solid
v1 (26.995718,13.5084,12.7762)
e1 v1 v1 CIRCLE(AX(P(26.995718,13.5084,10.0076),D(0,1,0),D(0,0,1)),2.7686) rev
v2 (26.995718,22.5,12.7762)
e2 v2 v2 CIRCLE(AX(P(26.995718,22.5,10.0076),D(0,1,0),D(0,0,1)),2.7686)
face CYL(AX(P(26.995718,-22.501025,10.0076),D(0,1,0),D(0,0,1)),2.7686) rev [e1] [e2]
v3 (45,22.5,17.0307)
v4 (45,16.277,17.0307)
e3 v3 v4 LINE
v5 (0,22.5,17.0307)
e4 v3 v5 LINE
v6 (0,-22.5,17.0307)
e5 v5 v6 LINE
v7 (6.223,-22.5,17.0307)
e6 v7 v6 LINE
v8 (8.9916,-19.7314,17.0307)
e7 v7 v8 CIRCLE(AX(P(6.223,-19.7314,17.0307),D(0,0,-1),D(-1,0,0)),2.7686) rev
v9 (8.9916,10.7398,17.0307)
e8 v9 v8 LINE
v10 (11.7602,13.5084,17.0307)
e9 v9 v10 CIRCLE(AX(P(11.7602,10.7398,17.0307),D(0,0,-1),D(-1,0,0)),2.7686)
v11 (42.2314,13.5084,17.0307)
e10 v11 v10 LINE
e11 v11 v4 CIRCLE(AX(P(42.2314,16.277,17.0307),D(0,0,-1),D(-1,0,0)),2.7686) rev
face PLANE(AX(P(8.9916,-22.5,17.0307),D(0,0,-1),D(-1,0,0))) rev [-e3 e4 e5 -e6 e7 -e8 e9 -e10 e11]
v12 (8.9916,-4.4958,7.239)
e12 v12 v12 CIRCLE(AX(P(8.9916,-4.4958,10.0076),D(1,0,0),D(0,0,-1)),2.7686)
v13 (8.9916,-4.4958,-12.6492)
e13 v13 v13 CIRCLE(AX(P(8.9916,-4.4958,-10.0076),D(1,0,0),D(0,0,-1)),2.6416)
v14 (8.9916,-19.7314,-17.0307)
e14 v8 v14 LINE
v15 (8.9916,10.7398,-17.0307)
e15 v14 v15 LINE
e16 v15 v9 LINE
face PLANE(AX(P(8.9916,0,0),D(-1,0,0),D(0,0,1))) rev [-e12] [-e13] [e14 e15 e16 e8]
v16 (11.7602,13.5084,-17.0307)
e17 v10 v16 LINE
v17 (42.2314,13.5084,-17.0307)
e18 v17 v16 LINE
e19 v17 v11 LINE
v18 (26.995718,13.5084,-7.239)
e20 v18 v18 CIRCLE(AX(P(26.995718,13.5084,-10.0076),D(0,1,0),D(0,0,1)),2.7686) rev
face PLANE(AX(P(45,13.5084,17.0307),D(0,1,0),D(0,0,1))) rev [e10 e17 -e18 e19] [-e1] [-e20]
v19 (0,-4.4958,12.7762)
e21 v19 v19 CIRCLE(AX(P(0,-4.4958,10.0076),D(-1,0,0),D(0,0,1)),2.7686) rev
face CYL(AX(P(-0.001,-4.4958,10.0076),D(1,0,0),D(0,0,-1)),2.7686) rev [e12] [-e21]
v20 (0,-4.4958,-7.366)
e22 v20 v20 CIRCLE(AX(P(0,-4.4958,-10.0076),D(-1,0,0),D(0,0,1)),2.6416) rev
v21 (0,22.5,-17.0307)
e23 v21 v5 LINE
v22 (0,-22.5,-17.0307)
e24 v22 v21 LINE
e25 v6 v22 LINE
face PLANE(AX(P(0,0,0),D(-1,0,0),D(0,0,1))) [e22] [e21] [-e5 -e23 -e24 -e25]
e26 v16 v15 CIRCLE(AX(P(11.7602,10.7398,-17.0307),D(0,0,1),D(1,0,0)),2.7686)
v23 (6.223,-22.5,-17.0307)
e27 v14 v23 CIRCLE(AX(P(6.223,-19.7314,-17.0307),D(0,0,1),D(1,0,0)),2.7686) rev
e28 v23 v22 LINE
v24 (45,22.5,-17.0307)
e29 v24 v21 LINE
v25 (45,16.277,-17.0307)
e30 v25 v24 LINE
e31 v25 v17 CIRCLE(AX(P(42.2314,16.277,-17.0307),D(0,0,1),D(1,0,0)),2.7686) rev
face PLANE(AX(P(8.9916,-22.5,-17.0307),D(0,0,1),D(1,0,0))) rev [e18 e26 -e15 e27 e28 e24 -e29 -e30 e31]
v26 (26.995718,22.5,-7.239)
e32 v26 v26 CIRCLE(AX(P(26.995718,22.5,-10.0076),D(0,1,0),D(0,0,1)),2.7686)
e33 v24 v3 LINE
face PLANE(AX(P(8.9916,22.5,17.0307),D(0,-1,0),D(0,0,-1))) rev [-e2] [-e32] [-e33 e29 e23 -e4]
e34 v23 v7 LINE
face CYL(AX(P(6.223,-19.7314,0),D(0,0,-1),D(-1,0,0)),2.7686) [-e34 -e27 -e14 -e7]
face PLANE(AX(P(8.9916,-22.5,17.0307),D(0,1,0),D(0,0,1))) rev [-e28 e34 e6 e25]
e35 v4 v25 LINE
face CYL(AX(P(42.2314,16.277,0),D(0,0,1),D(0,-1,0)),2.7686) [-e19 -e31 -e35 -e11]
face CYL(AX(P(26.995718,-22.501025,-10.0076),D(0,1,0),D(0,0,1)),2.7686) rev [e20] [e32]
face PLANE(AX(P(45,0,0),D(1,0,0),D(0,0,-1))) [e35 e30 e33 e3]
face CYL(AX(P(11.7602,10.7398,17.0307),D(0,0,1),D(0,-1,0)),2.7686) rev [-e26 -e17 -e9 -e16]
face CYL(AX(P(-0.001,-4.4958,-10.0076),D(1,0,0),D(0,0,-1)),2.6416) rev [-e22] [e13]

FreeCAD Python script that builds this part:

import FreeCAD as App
import Part
import Sketcher
from FreeCAD import Vector
Q = App.Units.Quantity


def edges_at(feature, points):
    """Names of the edges that pass closest to the given points."""
    edges = feature.Shape.Edges
    near = lambda p: min(range(len(edges)), key=lambda i: edges[i].distToShape(Part.Vertex(*p))[0])
    return sorted({f"Edge{near(p) + 1}" for p in points})


def add_polygon(sketch, points):
    """Adds a closed chain of lines whose ends are joined by coincident constraints."""
    first, n = sketch.GeometryCount, len(points)
    for a, b in zip(points, points[1:] + points[:1]):
        sketch.addGeometry(Part.LineSegment(App.Vector(*a, 0), App.Vector(*b, 0)), False)
    for i in range(n):
        sketch.addConstraint(Sketcher.Constraint("Coincident", first + i, 2, first + (i + 1) % n, 1))

doc = App.newDocument("Part")
body = doc.addObject("PartDesign::Body", "Body")

# Sketch on YZ plane
sketch1 = body.newObject("Sketcher::SketchObject", "Sketch")
sketch1.AttachmentSupport = (doc.getObject("YZ_Plane"), [""])
sketch1.MapMode = "FlatFace"
add_polygon(sketch1, [(22, 17), (-22, 17), (-22, -17), (22, -17)])  # lines 0-3
sketch1.addConstraint([
    Sketcher.Constraint("Horizontal", 0),
    Sketcher.Constraint("Vertical", 1),
    Sketcher.Constraint("Horizontal", 2),
    Sketcher.Constraint("Vertical", 3),
    Sketcher.Constraint("Symmetric", 0, 2, 2, 2, -1, 1),
    Sketcher.Constraint("DistanceY", 1, 2, 1, 1, Q("1.341 in")),
    Sketcher.Constraint("DistanceX", 0, 2, 0, 1, Q("45 mm")),
])
pad1 = body.newObject("PartDesign::Pad", "Pad")
pad1.Profile = sketch1
pad1.Length = Q("0.354 in")

# Sketch on YZ plane
sketch2 = body.newObject("Sketcher::SketchObject", "Sketch001")
sketch2.AttachmentSupport = (doc.getObject("YZ_Plane"), [""])
sketch2.MapMode = "FlatFace"
sketch2.AttachmentOffset = App.Placement(Vector(0, 0, 0.354 * 25.4), App.Rotation())
add_polygon(sketch2, [(22, 17), (14, 17), (14, -17), (22, -17)])  # lines 0-3
sketch2.addConstraint([
    Sketcher.Constraint("Horizontal", 0),
    Sketcher.Constraint("Vertical", 1),
    Sketcher.Constraint("Horizontal", 2),
    Sketcher.Constraint("Vertical", 3),
    Sketcher.Constraint("DistanceX", 0, 2, 0, 1, Q("0.354 in")),
    Sketcher.Constraint("DistanceY", 1, 2, 1, 1, Q("1.341 in")),
    Sketcher.Constraint("DistanceY", -1, 1, 0, 2, Q("0.6705 in")),
    Sketcher.Constraint("DistanceX", -1, 1, 0, 2, Q("13.5084 mm")),
])
pad2 = body.newObject("PartDesign::Pad", "Pad001")
pad2.Profile = sketch2
pad2.Length = 36.0084

# Sketch on YZ plane
sketch3 = body.newObject("Sketcher::SketchObject", "Sketch002")
sketch3.AttachmentSupport = (doc.getObject("YZ_Plane"), [""])
sketch3.MapMode = "FlatFace"
sketch3.AttachmentOffset = App.Placement(Vector(0, 0, 0.354 * 25.4), App.Rotation())
sketch3.addGeometry(Part.Circle(Vector(-4.5, 10, 0), Vector(0, 0, 1), 2.8), False)
sketch3.addConstraint([
    Sketcher.Constraint("Diameter", 0, Q("0.218 in")),
    Sketcher.Constraint("DistanceX", 0, 3, -1, 1, Q("0.177 in")),
    Sketcher.Constraint("DistanceY", -1, 1, 0, 3, Q("0.394 in")),
])
pocket1 = body.newObject("PartDesign::Pocket", "Pocket")
pocket1.Profile = sketch3
pocket1.Type = "UpToFirst"

# Sketch on YZ plane
sketch4 = body.newObject("Sketcher::SketchObject", "Sketch003")
sketch4.AttachmentSupport = (doc.getObject("YZ_Plane"), [""])
sketch4.MapMode = "FlatFace"
sketch4.AttachmentOffset = App.Placement(Vector(0, 0, 0.354 * 25.4), App.Rotation())
sketch4.addGeometry(Part.Circle(Vector(-4.5, -10, 0), Vector(0, 0, 1), 2.6), False)
sketch4.addConstraint([
    Sketcher.Constraint("Diameter", 0, Q("0.208 in")),
    Sketcher.Constraint("DistanceX", 0, 3, -1, 1, Q("0.177 in")),
    Sketcher.Constraint("DistanceY", 0, 3, -1, 1, Q("0.394 in")),
])
pocket2 = body.newObject("PartDesign::Pocket", "Pocket001")
pocket2.Profile = sketch4
pocket2.Type = "UpToFirst"

# Sketch on XZ plane
sketch5 = body.newObject("Sketcher::SketchObject", "Sketch004")
sketch5.AttachmentSupport = (doc.getObject("XZ_Plane"), [""])
sketch5.MapMode = "FlatFace"
sketch5.AttachmentOffset = App.Placement(Vector(0, 0, -22.5), App.Rotation())
sketch5.addGeometry(Part.Circle(Vector(27, -10, 0), Vector(0, 0, 1), 2.8), False)
sketch5.addConstraint([
    Sketcher.Constraint("Diameter", 0, Q("0.218 in")),
    Sketcher.Constraint("DistanceY", 0, 3, -1, 1, Q("0.394 in")),
    Sketcher.Constraint("DistanceX", -1, 1, 0, 3, Q("26.995718 mm")),
])
pocket3 = body.newObject("PartDesign::Pocket", "Pocket002")
pocket3.Profile = sketch5
pocket3.Type = "UpToFirst"
pocket3.Reversed = True

# Sketch on XZ plane
sketch6 = body.newObject("Sketcher::SketchObject", "Sketch005")
sketch6.AttachmentSupport = (doc.getObject("XZ_Plane"), [""])
sketch6.MapMode = "FlatFace"
sketch6.AttachmentOffset = App.Placement(Vector(0, 0, -22.5), App.Rotation())
sketch6.addGeometry(Part.Circle(Vector(27, 10, 0), Vector(0, 0, 1), 2.8), False)
sketch6.addConstraint([
    Sketcher.Constraint("Diameter", 0, Q("0.218 in")),
    Sketcher.Constraint("DistanceY", -1, 1, 0, 3, Q("0.394 in")),
    Sketcher.Constraint("DistanceX", -1, 1, 0, 3, Q("26.995718 mm")),
])
pocket4 = body.newObject("PartDesign::Pocket", "Pocket003")
pocket4.Profile = sketch6
pocket4.Type = "UpToFirst"
pocket4.Reversed = True
doc.recompute()

fillet = body.newObject("PartDesign::Fillet", "Fillet")
fillet.Base = (pocket4, edges_at(pocket4, [(8.992, -22.5, 0), (8.992, 13.508, 0), (45, 13.508, 0)]))
fillet.Radius = Q("0.109 in")

doc.recompute()
